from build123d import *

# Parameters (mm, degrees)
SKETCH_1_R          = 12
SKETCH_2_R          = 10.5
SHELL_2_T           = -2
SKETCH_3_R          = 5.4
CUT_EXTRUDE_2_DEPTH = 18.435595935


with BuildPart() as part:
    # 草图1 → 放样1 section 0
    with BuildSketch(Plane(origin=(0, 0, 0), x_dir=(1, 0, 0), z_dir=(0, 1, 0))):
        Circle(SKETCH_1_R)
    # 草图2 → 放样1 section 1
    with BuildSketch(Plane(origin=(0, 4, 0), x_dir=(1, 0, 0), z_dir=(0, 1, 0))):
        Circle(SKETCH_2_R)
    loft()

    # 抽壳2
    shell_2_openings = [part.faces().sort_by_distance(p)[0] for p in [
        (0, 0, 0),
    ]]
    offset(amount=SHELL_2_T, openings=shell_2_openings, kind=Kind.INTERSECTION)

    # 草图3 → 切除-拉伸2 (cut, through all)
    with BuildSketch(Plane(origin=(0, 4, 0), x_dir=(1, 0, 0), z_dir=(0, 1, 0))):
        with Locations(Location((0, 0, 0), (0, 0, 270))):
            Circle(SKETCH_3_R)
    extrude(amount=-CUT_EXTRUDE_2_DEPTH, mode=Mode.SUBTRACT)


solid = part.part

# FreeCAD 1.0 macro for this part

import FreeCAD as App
import Part
import Sketcher

V = App.Vector


def faces_at(feature, points):
    """Names of the faces that lie closest to the given points."""
    faces = feature.Shape.Faces
    near = lambda p: min(range(len(faces)), key=lambda i: faces[i].distToShape(Part.Vertex(*p))[0])
    return sorted({f"Face{near(p) + 1}" for p in points})

doc = App.newDocument("Part")
body = doc.addObject("PartDesign::Body", "Body")

sketch1 = doc.addObject("Sketcher::SketchObject", "Sketch")
body.addObject(sketch1)
sketch1.AttachmentSupport = (doc.XZ_Plane, [""])
sketch1.MapMode = "FlatFace"
sketch1.addGeometry(Part.Circle(V(0, 0, 0), V(0, 0, 1), 12), False)
sketch1.addConstraint(Sketcher.Constraint("Coincident", 0, 3, -1, 1))
sketch1.addConstraint(Sketcher.Constraint("Diameter", 0, 24.0))

sketch2 = doc.addObject("Sketcher::SketchObject", "Sketch001")
body.addObject(sketch2)
sketch2.AttachmentSupport = (doc.XZ_Plane, [""])
sketch2.MapMode = "FlatFace"
sketch2.AttachmentOffset = App.Placement(V(0, 0, -4), App.Rotation())
sketch2.addGeometry(Part.Circle(V(0, 0, 0), V(0, 0, 1), 10), False)
sketch2.addConstraint(Sketcher.Constraint("Coincident", 0, 3, -1, 1))
sketch2.addConstraint(Sketcher.Constraint("Diameter", 0, 21.0))

additiveloft = doc.addObject("PartDesign::AdditiveLoft", "AdditiveLoft")
body.addObject(additiveloft)
additiveloft.Profile = sketch1
additiveloft.Sections = [sketch2]
doc.recompute()

thickness = doc.addObject("PartDesign::Thickness", "Thickness")
body.addObject(thickness)
thickness.Base = (additiveloft, faces_at(additiveloft, [(0, 0, 0)]))
thickness.Value = 2
thickness.Reversed = True
thickness.Join = "Intersection"

sketch3 = doc.addObject("Sketcher::SketchObject", "Sketch002")
body.addObject(sketch3)
sketch3.AttachmentSupport = (doc.XZ_Plane, [""])
sketch3.MapMode = "FlatFace"
sketch3.AttachmentOffset = App.Placement(V(0, 0, -4), App.Rotation())
sketch3.addGeometry(Part.Circle(V(0, 0, 0), V(0, 0, 1), 5), False)
sketch3.addConstraint(Sketcher.Constraint("Coincident", 0, 3, -1, 1))
sketch3.addConstraint(Sketcher.Constraint("Diameter", 0, 10.8))
pocket1 = doc.addObject("PartDesign::Pocket", "Pocket")
body.addObject(pocket1)
pocket1.Profile = sketch3
pocket1.Type = "ThroughAll"
pocket1.Reversed = True

doc.recompute()
